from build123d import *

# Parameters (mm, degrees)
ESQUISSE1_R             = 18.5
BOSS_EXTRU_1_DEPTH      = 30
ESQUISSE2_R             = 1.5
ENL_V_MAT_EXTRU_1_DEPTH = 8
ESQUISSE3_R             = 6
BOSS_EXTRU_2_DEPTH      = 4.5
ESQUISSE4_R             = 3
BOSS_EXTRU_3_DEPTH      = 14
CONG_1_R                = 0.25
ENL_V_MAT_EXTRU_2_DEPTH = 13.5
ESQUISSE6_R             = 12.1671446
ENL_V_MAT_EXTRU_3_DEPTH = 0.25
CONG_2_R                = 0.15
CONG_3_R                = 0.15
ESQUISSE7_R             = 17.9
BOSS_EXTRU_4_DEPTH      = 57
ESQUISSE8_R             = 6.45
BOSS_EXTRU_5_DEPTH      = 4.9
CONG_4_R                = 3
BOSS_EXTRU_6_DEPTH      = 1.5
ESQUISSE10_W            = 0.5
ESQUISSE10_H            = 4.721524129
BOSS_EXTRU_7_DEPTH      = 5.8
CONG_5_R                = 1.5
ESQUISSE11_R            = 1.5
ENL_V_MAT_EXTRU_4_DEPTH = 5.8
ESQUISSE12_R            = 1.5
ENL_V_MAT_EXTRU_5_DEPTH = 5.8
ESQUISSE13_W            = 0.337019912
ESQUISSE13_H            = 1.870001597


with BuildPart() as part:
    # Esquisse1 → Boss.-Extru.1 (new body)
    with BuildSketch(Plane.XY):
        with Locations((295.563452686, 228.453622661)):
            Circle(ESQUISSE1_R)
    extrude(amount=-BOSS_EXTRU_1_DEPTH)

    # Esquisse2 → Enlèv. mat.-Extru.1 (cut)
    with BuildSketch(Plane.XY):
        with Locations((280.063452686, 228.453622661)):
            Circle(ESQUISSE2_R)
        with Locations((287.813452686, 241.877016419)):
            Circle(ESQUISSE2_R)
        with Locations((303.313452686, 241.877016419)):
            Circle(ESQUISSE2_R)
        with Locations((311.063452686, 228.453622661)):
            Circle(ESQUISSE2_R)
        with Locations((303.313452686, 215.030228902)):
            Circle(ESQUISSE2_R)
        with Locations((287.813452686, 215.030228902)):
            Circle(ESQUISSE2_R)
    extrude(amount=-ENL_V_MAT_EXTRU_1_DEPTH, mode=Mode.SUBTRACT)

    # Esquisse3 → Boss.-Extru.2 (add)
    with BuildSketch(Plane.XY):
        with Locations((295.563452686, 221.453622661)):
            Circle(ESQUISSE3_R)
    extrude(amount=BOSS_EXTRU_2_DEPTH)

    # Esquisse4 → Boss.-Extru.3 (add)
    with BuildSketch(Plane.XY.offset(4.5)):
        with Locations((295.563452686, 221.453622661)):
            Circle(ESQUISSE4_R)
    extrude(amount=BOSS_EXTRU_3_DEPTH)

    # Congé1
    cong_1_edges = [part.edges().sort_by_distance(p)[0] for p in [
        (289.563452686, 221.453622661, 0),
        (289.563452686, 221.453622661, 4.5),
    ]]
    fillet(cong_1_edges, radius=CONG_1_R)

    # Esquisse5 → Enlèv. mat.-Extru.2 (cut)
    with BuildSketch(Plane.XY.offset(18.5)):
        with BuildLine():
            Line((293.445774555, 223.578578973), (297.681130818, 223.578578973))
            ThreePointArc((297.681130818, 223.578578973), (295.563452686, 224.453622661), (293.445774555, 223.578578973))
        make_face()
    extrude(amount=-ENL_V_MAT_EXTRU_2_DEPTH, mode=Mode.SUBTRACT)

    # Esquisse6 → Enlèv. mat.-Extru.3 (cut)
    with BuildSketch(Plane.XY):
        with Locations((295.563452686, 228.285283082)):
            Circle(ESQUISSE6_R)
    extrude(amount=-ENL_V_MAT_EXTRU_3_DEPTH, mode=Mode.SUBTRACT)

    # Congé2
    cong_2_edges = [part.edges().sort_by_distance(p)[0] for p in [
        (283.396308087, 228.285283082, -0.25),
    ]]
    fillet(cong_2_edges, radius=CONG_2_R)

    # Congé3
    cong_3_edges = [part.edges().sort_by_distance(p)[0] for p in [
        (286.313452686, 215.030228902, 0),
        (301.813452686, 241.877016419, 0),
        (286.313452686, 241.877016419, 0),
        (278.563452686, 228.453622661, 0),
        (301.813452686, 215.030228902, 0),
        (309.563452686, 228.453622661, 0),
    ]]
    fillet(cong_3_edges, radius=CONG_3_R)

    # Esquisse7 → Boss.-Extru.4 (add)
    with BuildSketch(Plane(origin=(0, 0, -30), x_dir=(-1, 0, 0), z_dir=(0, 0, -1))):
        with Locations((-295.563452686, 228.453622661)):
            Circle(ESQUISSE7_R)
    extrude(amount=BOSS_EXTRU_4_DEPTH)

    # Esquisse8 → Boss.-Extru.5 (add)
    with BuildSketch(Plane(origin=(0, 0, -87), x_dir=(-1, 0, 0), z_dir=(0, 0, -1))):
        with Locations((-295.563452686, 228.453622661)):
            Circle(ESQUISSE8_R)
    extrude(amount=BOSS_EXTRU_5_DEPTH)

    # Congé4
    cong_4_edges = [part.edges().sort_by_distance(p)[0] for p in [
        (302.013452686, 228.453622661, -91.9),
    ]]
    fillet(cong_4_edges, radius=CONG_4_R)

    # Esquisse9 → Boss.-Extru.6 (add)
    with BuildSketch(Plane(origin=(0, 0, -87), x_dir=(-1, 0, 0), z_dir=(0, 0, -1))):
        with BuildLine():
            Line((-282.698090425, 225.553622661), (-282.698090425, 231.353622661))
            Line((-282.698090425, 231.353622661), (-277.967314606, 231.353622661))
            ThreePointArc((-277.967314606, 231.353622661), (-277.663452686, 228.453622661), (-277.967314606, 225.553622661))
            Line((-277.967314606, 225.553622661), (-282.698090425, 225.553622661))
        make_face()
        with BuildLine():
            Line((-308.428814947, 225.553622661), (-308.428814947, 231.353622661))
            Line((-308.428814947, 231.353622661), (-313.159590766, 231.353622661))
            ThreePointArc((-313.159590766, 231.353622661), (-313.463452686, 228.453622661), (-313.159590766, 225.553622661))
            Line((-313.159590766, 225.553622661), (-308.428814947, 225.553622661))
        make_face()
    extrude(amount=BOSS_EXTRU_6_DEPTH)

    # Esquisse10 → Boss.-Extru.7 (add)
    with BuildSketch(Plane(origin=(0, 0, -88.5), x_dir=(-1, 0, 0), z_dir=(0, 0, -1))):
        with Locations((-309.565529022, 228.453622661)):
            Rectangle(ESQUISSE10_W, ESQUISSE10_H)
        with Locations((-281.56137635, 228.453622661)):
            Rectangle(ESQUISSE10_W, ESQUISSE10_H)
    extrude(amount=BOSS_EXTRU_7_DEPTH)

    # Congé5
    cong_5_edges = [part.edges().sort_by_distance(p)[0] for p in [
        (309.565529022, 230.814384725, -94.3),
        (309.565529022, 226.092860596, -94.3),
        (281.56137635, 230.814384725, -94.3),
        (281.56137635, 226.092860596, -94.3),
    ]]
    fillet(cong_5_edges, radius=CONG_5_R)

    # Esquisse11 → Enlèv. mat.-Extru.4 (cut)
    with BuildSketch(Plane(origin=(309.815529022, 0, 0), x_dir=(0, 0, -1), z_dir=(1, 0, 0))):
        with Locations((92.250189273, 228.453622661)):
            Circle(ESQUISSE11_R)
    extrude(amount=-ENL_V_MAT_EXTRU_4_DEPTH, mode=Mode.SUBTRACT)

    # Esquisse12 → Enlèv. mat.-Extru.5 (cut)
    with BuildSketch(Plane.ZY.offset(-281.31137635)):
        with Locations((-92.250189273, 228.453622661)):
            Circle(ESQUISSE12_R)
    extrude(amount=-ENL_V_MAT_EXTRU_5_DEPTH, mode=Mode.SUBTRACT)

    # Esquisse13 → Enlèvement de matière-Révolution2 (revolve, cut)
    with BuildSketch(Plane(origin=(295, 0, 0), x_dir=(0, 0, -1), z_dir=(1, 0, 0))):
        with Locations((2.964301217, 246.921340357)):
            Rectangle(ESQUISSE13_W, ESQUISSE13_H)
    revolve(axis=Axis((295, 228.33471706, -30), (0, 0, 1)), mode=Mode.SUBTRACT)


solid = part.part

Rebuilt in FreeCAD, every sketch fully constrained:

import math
import FreeCAD as App
import Part
import Sketcher


def edges_at(feature, points):
    """Names of the edges that pass closest to the given points."""
    edges = feature.Shape.Edges
    near = lambda p: min(range(len(edges)), key=lambda i: edges[i].distToShape(Part.Vertex(*p))[0])
    return sorted({f"Edge{near(p) + 1}" for p in points})


def add_polygon(sketch, points):
    """Adds a closed chain of lines whose ends are joined by coincident constraints."""
    first, n = sketch.GeometryCount, len(points)
    for a, b in zip(points, points[1:] + points[:1]):
        sketch.addGeometry(Part.LineSegment(App.Vector(*a, 0), App.Vector(*b, 0)), False)
    for i in range(n):
        sketch.addConstraint(Sketcher.Constraint("Coincident", first + i, 2, first + (i + 1) % n, 1))

doc = App.newDocument("Part")
params = doc.addObject("Spreadsheet::Sheet", "Params")
for row, (alias, value) in enumerate([
    ("sketch1_diameter", "37 mm"),
    ("pad1_length", "30 mm"),
    ("sketch2_diameter", "3 mm"),
    ("pocket1_length", "8 mm"),
    ("sketch3_diameter", "12 mm"),
    ("pad2_length", "4.5 mm"),
    ("sketch4_diameter", "6 mm"),
    ("pad3_length", "14 mm"),
    ("fillet_radius", "0.25 mm"),
    ("sketch5_radius", "3 mm"),
    ("pocket2_length", "13.5 mm"),
    ("pocket3_length", "0.25 mm"),
    ("fillet2_radius", "0.15 mm"),
    ("fillet3_radius", "0.15 mm"),
    ("sketch7_diameter", "35.8 mm"),
    ("pad4_length", "57 mm"),
    ("sketch8_diameter", "12.9 mm"),
    ("pad5_length", "4.9 mm"),
    ("fillet4_radius", "3 mm"),
    ("sketch9_height", "5.8 mm"),
    ("pad6_length", "1.5 mm"),
    ("sketch10_width", "0.5 mm"),
    ("pad7_length", "5.8 mm"),
    ("fillet5_radius", "1.5 mm"),
    ("sketch11_diameter", "3 mm"),
    ("pocket4_length", "5.8 mm"),
    ("sketch12_diameter", "3 mm"),
    ("pocket5_length", "5.8 mm"),
    ("sketch13_width", "1.870002 mm"),
    ("groove_angle", "360 deg"),
], start=1):
    params.set(f"A{row}", alias)
    params.set(f"B{row}", "=" + value)
    params.setAlias(f"B{row}", alias)

body = doc.addObject("PartDesign::Body", "Body")

# Sketch on XY plane
sketch1 = body.newObject("Sketcher::SketchObject", "Sketch")
sketch1.AttachmentSupport = (doc.getObject("XY_Plane"), [""])
sketch1.MapMode = "FlatFace"
sketch1.addGeometry(Part.Circle(App.Vector(296, 228, 0), App.Vector(0, 0, 1), 18), False)
sketch1.addConstraint(Sketcher.Constraint("Diameter", 0, 37.0))
sketch1.addConstraint(Sketcher.Constraint("DistanceX", -1, 1, 0, 3, 295.563453))
sketch1.addConstraint(Sketcher.Constraint("DistanceY", -1, 1, 0, 3, 228.453623))
sketch1.setExpression("Constraints[0]", "Params.sketch1_diameter")
pad1 = body.newObject("PartDesign::Pad", "Pad")
pad1.Profile = sketch1
pad1.setExpression("Length", "Params.pad1_length")
pad1.Reversed = True

# Sketch on XY plane
sketch2 = body.newObject("Sketcher::SketchObject", "Sketch001")
sketch2.AttachmentSupport = (doc.getObject("XY_Plane"), [""])
sketch2.MapMode = "FlatFace"
sketch2.addGeometry(Part.Circle(App.Vector(280.1, 228.5, 0), App.Vector(0, 0, 1), 1.5), False)
sketch2.addGeometry(Part.Circle(App.Vector(287.8, 241.9, 0), App.Vector(0, 0, 1), 1.5), False)
sketch2.addGeometry(Part.Circle(App.Vector(303.3, 241.9, 0), App.Vector(0, 0, 1), 1.5), False)
sketch2.addGeometry(Part.Circle(App.Vector(311.1, 228.5, 0), App.Vector(0, 0, 1), 1.5), False)
sketch2.addGeometry(Part.Circle(App.Vector(303.3, 215, 0), App.Vector(0, 0, 1), 1.5), False)
sketch2.addGeometry(Part.Circle(App.Vector(287.8, 215, 0), App.Vector(0, 0, 1), 1.5), False)
sketch2.addConstraint(Sketcher.Constraint("Equal", 0, 1))
sketch2.addConstraint(Sketcher.Constraint("Equal", 1, 2))
sketch2.addConstraint(Sketcher.Constraint("Equal", 2, 3))
sketch2.addConstraint(Sketcher.Constraint("Equal", 3, 4))
sketch2.addConstraint(Sketcher.Constraint("Equal", 4, 5))
sketch2.addConstraint(Sketcher.Constraint("Horizontal", 1, 3, 2, 3))
sketch2.addConstraint(Sketcher.Constraint("Horizontal", 0, 3, 3, 3))
sketch2.addConstraint(Sketcher.Constraint("Horizontal", 4, 3, 5, 3))
sketch2.addConstraint(Sketcher.Constraint("Vertical", 2, 3, 4, 3))
sketch2.addConstraint(Sketcher.Constraint("Vertical", 1, 3, 5, 3))
sketch2.addConstraint(Sketcher.Constraint("Diameter", 0, 3.0))
sketch2.addConstraint(Sketcher.Constraint("DistanceX", 0, 3, 3, 3, 31.0))
sketch2.addConstraint(Sketcher.Constraint("DistanceX", 1, 3, 2, 3, 15.5))
sketch2.addConstraint(Sketcher.Constraint("DistanceX", 0, 3, 1, 3, 7.75))
sketch2.addConstraint(Sketcher.Constraint("DistanceY", -1, 1, 4, 3, 215.030229))
sketch2.addConstraint(Sketcher.Constraint("DistanceX", -1, 1, 0, 3, 280.063453))
sketch2.addConstraint(Sketcher.Constraint("DistanceY", -1, 1, 0, 3, 228.453623))
sketch2.addConstraint(Sketcher.Constraint("DistanceY", -1, 1, 1, 3, 241.877016))
sketch2.setExpression("Constraints[10]", "Params.sketch2_diameter")
pocket1 = body.newObject("PartDesign::Pocket", "Pocket")
pocket1.Profile = sketch2
pocket1.setExpression("Length", "Params.pocket1_length")

# Sketch on XY plane
sketch3 = body.newObject("Sketcher::SketchObject", "Sketch002")
sketch3.AttachmentSupport = (doc.getObject("XY_Plane"), [""])
sketch3.MapMode = "FlatFace"
sketch3.addGeometry(Part.Circle(App.Vector(296, 221, 0), App.Vector(0, 0, 1), 6), False)
sketch3.addConstraint(Sketcher.Constraint("Diameter", 0, 12.0))
sketch3.addConstraint(Sketcher.Constraint("DistanceX", -1, 1, 0, 3, 295.563453))
sketch3.addConstraint(Sketcher.Constraint("DistanceY", -1, 1, 0, 3, 221.453623))
sketch3.setExpression("Constraints[0]", "Params.sketch3_diameter")
pad2 = body.newObject("PartDesign::Pad", "Pad001")
pad2.Profile = sketch3
pad2.setExpression("Length", "Params.pad2_length")

# Sketch on XY plane
sketch4 = body.newObject("Sketcher::SketchObject", "Sketch003")
sketch4.AttachmentSupport = (doc.getObject("XY_Plane"), [""])
sketch4.MapMode = "FlatFace"
sketch4.AttachmentOffset = App.Placement(App.Vector(0, 0, 4.5), App.Rotation())
sketch4.addGeometry(Part.Circle(App.Vector(295.6, 221.5, 0), App.Vector(0, 0, 1), 3), False)
sketch4.addConstraint(Sketcher.Constraint("Diameter", 0, 6.0))
sketch4.addConstraint(Sketcher.Constraint("DistanceX", -1, 1, 0, 3, 295.563453))
sketch4.addConstraint(Sketcher.Constraint("DistanceY", -1, 1, 0, 3, 221.453623))
sketch4.setExpression("Constraints[0]", "Params.sketch4_diameter")
pad3 = body.newObject("PartDesign::Pad", "Pad002")
pad3.Profile = sketch4
pad3.setExpression("Length", "Params.pad3_length")
doc.recompute()

fillet = body.newObject("PartDesign::Fillet", "Fillet")
fillet.Base = (pad3, edges_at(pad3, [(289.563, 221.454, 0), (289.563, 221.454, 4.5)]))
fillet.setExpression("Radius", "Params.fillet_radius")

# Sketch on XY plane
sketch5 = body.newObject("Sketcher::SketchObject", "Sketch004")
sketch5.AttachmentSupport = (doc.getObject("XY_Plane"), [""])
sketch5.MapMode = "FlatFace"
sketch5.AttachmentOffset = App.Placement(App.Vector(0, 0, 18.5), App.Rotation())
sketch5.addGeometry(Part.LineSegment(App.Vector(293.4, 223.6, 0), App.Vector(297.7, 223.6, 0)), False)
sketch5.addGeometry(Part.ArcOfCircle(Part.Circle(App.Vector(295.6, 221.5, 0), App.Vector(0, 0, 1), 3), math.radians(45), math.radians(135)), False)
sketch5.addConstraint(Sketcher.Constraint("Coincident", 0, 1, 1, 2))
sketch5.addConstraint(Sketcher.Constraint("Coincident", 1, 1, 0, 2))
sketch5.addConstraint(Sketcher.Constraint("Horizontal", 0))
sketch5.addConstraint(Sketcher.Constraint("Radius", 1, 3.0))
sketch5.addConstraint(Sketcher.Constraint("DistanceX", 0, 1, 0, 2, 4.235356))
sketch5.addConstraint(Sketcher.Constraint("DistanceY", -1, 1, 0, 1, 223.578579))
sketch5.addConstraint(Sketcher.Constraint("DistanceX", -1, 1, 1, 1, 297.681131))
sketch5.setExpression("Constraints[3]", "Params.sketch5_radius")
pocket2 = body.newObject("PartDesign::Pocket", "Pocket001")
pocket2.Profile = sketch5
pocket2.setExpression("Length", "Params.pocket2_length")

# Sketch on XY plane
sketch6 = body.newObject("Sketcher::SketchObject", "Sketch005")
sketch6.AttachmentSupport = (doc.getObject("XY_Plane"), [""])
sketch6.MapMode = "FlatFace"
sketch6.addGeometry(Part.Circle(App.Vector(296, 228, 0), App.Vector(0, 0, 1), 12), False)
sketch6.addConstraint(Sketcher.Constraint("Diameter", 0, 24.334289))
sketch6.addConstraint(Sketcher.Constraint("DistanceX", -1, 1, 0, 3, 295.563453))
sketch6.addConstraint(Sketcher.Constraint("DistanceY", -1, 1, 0, 3, 228.285283))
pocket3 = body.newObject("PartDesign::Pocket", "Pocket002")
pocket3.Profile = sketch6
pocket3.setExpression("Length", "Params.pocket3_length")
doc.recompute()

fillet2 = body.newObject("PartDesign::Fillet", "Fillet001")
fillet2.Base = (pocket3, edges_at(pocket3, [(283.396, 228.285, -0.25)]))
fillet2.setExpression("Radius", "Params.fillet2_radius")
doc.recompute()

fillet3 = body.newObject("PartDesign::Fillet", "Fillet002")
fillet3.Base = (fillet2, edges_at(fillet2, [
    (286.313, 215.03, 0),
    (301.813, 241.877, 0),
    (286.313, 241.877, 0),
    (278.563, 228.454, 0),
    (301.813, 215.03, 0),
    (309.563, 228.454, 0),
]))
fillet3.setExpression("Radius", "Params.fillet3_radius")

# Sketch on XY plane
sketch7 = body.newObject("Sketcher::SketchObject", "Sketch006")
sketch7.AttachmentSupport = (doc.getObject("XY_Plane"), [""])
sketch7.MapMode = "FlatFace"
sketch7.AttachmentOffset = App.Placement(App.Vector(0, 0, -30), App.Rotation())
sketch7.addGeometry(Part.Circle(App.Vector(296, 228, 0), App.Vector(0, 0, 1), 18), False)
sketch7.addConstraint(Sketcher.Constraint("Diameter", 0, 35.8))
sketch7.addConstraint(Sketcher.Constraint("DistanceX", -1, 1, 0, 3, 295.563453))
sketch7.addConstraint(Sketcher.Constraint("DistanceY", -1, 1, 0, 3, 228.453623))
sketch7.setExpression("Constraints[0]", "Params.sketch7_diameter")
pad4 = body.newObject("PartDesign::Pad", "Pad003")
pad4.Profile = sketch7
pad4.setExpression("Length", "Params.pad4_length")
pad4.Reversed = True

# Sketch on XY plane
sketch8 = body.newObject("Sketcher::SketchObject", "Sketch007")
sketch8.AttachmentSupport = (doc.getObject("XY_Plane"), [""])
sketch8.MapMode = "FlatFace"
sketch8.AttachmentOffset = App.Placement(App.Vector(0, 0, -87), App.Rotation())
sketch8.addGeometry(Part.Circle(App.Vector(296, 228, 0), App.Vector(0, 0, 1), 6), False)
sketch8.addConstraint(Sketcher.Constraint("Diameter", 0, 12.9))
sketch8.addConstraint(Sketcher.Constraint("DistanceX", -1, 1, 0, 3, 295.563453))
sketch8.addConstraint(Sketcher.Constraint("DistanceY", -1, 1, 0, 3, 228.453623))
sketch8.setExpression("Constraints[0]", "Params.sketch8_diameter")
pad5 = body.newObject("PartDesign::Pad", "Pad004")
pad5.Profile = sketch8
pad5.setExpression("Length", "Params.pad5_length")
pad5.Reversed = True
doc.recompute()

fillet4 = body.newObject("PartDesign::Fillet", "Fillet003")
fillet4.Base = (pad5, edges_at(pad5, [(302.013, 228.454, -91.9)]))
fillet4.setExpression("Radius", "Params.fillet4_radius")

# Sketch on XY plane
sketch9 = body.newObject("Sketcher::SketchObject", "Sketch008")
sketch9.AttachmentSupport = (doc.getObject("XY_Plane"), [""])
sketch9.MapMode = "FlatFace"
sketch9.AttachmentOffset = App.Placement(App.Vector(0, 0, -87), App.Rotation())
sketch9.addGeometry(Part.LineSegment(App.Vector(282.7, 231.4, 0), App.Vector(282.7, 225.6, 0)), False)
sketch9.addGeometry(Part.LineSegment(App.Vector(282.7, 225.6, 0), App.Vector(278, 225.6, 0)), False)
sketch9.addGeometry(Part.ArcOfCircle(Part.Circle(App.Vector(291.7, 228.5, 0), App.Vector(0, 0, 1), 14), math.radians(168), math.radians(192)), False)
sketch9.addGeometry(Part.LineSegment(App.Vector(278, 231.4, 0), App.Vector(282.7, 231.4, 0)), False)
sketch9.addGeometry(Part.LineSegment(App.Vector(308.4, 225.6, 0), App.Vector(308.4, 231.4, 0)), False)
sketch9.addGeometry(Part.LineSegment(App.Vector(308.4, 231.4, 0), App.Vector(313.2, 231.4, 0)), False)
sketch9.addGeometry(Part.ArcOfCircle(Part.Circle(App.Vector(299.5, 228.5, 0), App.Vector(0, 0, 1), 14), math.radians(-12), math.radians(12)), False)
sketch9.addGeometry(Part.LineSegment(App.Vector(313.2, 225.6, 0), App.Vector(308.4, 225.6, 0)), False)
sketch9.addConstraint(Sketcher.Constraint("Coincident", 0, 2, 1, 1))
sketch9.addConstraint(Sketcher.Constraint("Coincident", 1, 2, 2, 2))
sketch9.addConstraint(Sketcher.Constraint("Coincident", 2, 1, 3, 1))
sketch9.addConstraint(Sketcher.Constraint("Coincident", 3, 2, 0, 1))
sketch9.addConstraint(Sketcher.Constraint("Coincident", 4, 2, 5, 1))
sketch9.addConstraint(Sketcher.Constraint("Coincident", 5, 2, 6, 2))
sketch9.addConstraint(Sketcher.Constraint("Coincident", 6, 1, 7, 1))
sketch9.addConstraint(Sketcher.Constraint("Coincident", 7, 2, 4, 1))
sketch9.addConstraint(Sketcher.Constraint("Vertical", 0))
sketch9.addConstraint(Sketcher.Constraint("Horizontal", 1))
sketch9.addConstraint(Sketcher.Constraint("Horizontal", 3))
sketch9.addConstraint(Sketcher.Constraint("Vertical", 4))
sketch9.addConstraint(Sketcher.Constraint("Horizontal", 5))
sketch9.addConstraint(Sketcher.Constraint("Horizontal", 7))
sketch9.addConstraint(Sketcher.Constraint("Equal", 2, 6))
sketch9.addConstraint(Sketcher.Constraint("Horizontal", 2, 3, 6, 3))
sketch9.addConstraint(Sketcher.Constraint("Horizontal", 3, 2, 4, 2))
sketch9.addConstraint(Sketcher.Constraint("Horizontal", 1, 2, 6, 1))
sketch9.addConstraint(Sketcher.Constraint("Vertical", 1, 2, 2, 1))
sketch9.addConstraint(Sketcher.Constraint("Equal", 3, 5))
sketch9.addConstraint(Sketcher.Constraint("DistanceY", 0, 2, 0, 1, 5.8))
sketch9.addConstraint(Sketcher.Constraint("DistanceX", -1, 1, 6, 3, 299.472999))
sketch9.addConstraint(Sketcher.Constraint("Radius", 2, 13.990453))
sketch9.addConstraint(Sketcher.Constraint("DistanceX", 2, 1, 4, 2, 30.4615))
sketch9.addConstraint(Sketcher.Constraint("DistanceX", 1, 2, 1, 1, 4.730776))
sketch9.addConstraint(Sketcher.Constraint("DistanceY", -1, 1, 2, 3, 228.453623))
sketch9.setExpression("Constraints[20]", "Params.sketch9_height")
pad6 = body.newObject("PartDesign::Pad", "Pad005")
pad6.Profile = sketch9
pad6.setExpression("Length", "Params.pad6_length")
pad6.Reversed = True

# Sketch on XY plane
sketch10 = body.newObject("Sketcher::SketchObject", "Sketch009")
sketch10.AttachmentSupport = (doc.getObject("XY_Plane"), [""])
sketch10.MapMode = "FlatFace"
sketch10.AttachmentOffset = App.Placement(App.Vector(0, 0, -88.5), App.Rotation())
add_polygon(sketch10, [(309.8, 230.8), (309.8, 226.1), (309.3, 226.1), (309.3, 230.8)])  # lines 0-3
add_polygon(sketch10, [(281.8, 230.8), (281.8, 226.1), (281.3, 226.1), (281.3, 230.8)])  # lines 4-7
sketch10.addConstraint(Sketcher.Constraint("Vertical", 0))
sketch10.addConstraint(Sketcher.Constraint("Horizontal", 1))
sketch10.addConstraint(Sketcher.Constraint("Vertical", 2))
sketch10.addConstraint(Sketcher.Constraint("Horizontal", 3))
sketch10.addConstraint(Sketcher.Constraint("Vertical", 4))
sketch10.addConstraint(Sketcher.Constraint("Horizontal", 5))
sketch10.addConstraint(Sketcher.Constraint("Vertical", 6))
sketch10.addConstraint(Sketcher.Constraint("Horizontal", 7))
sketch10.addConstraint(Sketcher.Constraint("Horizontal", 1, 2, 4, 2))
sketch10.addConstraint(Sketcher.Constraint("Horizontal", 3, 2, 6, 2))
sketch10.addConstraint(Sketcher.Constraint("Equal", 3, 5))
sketch10.addConstraint(Sketcher.Constraint("DistanceX", 1, 2, 1, 1, 0.5))
sketch10.addConstraint(Sketcher.Constraint("DistanceY", 0, 2, 0, 1, 4.721524))
sketch10.addConstraint(Sketcher.Constraint("DistanceX", -1, 1, 0, 2, 309.815529))
sketch10.addConstraint(Sketcher.Constraint("DistanceY", -1, 1, 0, 2, 226.092861))
sketch10.addConstraint(Sketcher.Constraint("DistanceX", -1, 1, 4, 2, 281.811376))
sketch10.setExpression("Constraints[19]", "Params.sketch10_width")
pad7 = body.newObject("PartDesign::Pad", "Pad006")
pad7.Profile = sketch10
pad7.setExpression("Length", "Params.pad7_length")
pad7.Reversed = True
doc.recompute()

fillet5 = body.newObject("PartDesign::Fillet", "Fillet004")
fillet5.Base = (pad7, edges_at(pad7, [
    (309.566, 230.814, -94.3),
    (309.566, 226.093, -94.3),
    (281.561, 230.814, -94.3),
    (281.561, 226.093, -94.3),
]))
fillet5.setExpression("Radius", "Params.fillet5_radius")

# Sketch on YZ plane
sketch11 = body.newObject("Sketcher::SketchObject", "Sketch010")
sketch11.AttachmentSupport = (doc.getObject("YZ_Plane"), [""])
sketch11.MapMode = "FlatFace"
sketch11.AttachmentOffset = App.Placement(App.Vector(0, 0, 309.815529), App.Rotation())
sketch11.addGeometry(Part.Circle(App.Vector(228.5, -92.3, 0), App.Vector(0, 0, 1), 1.5), False)
sketch11.addConstraint(Sketcher.Constraint("Diameter", 0, 3.0))
sketch11.addConstraint(Sketcher.Constraint("DistanceY", 0, 3, -1, 1, 92.250189))
sketch11.addConstraint(Sketcher.Constraint("DistanceX", -1, 1, 0, 3, 228.453623))
sketch11.setExpression("Constraints[0]", "Params.sketch11_diameter")
pocket4 = body.newObject("PartDesign::Pocket", "Pocket003")
pocket4.Profile = sketch11
pocket4.setExpression("Length", "Params.pocket4_length")

# Sketch on YZ plane
sketch12 = body.newObject("Sketcher::SketchObject", "Sketch011")
sketch12.AttachmentSupport = (doc.getObject("YZ_Plane"), [""])
sketch12.MapMode = "FlatFace"
sketch12.AttachmentOffset = App.Placement(App.Vector(0, 0, 281.311376), App.Rotation())
sketch12.addGeometry(Part.Circle(App.Vector(228.5, -92.3, 0), App.Vector(0, 0, 1), 1.5), False)
sketch12.addConstraint(Sketcher.Constraint("Diameter", 0, 3.0))
sketch12.addConstraint(Sketcher.Constraint("DistanceY", 0, 3, -1, 1, 92.250189))
sketch12.addConstraint(Sketcher.Constraint("DistanceX", -1, 1, 0, 3, 228.453623))
sketch12.setExpression("Constraints[0]", "Params.sketch12_diameter")
pocket5 = body.newObject("PartDesign::Pocket", "Pocket004")
pocket5.Profile = sketch12
pocket5.setExpression("Length", "Params.pocket5_length")
pocket5.Reversed = True

# Sketch on YZ plane
sketch13 = body.newObject("Sketcher::SketchObject", "Sketch012")
sketch13.AttachmentSupport = (doc.getObject("YZ_Plane"), [""])
sketch13.MapMode = "FlatFace"
sketch13.AttachmentOffset = App.Placement(App.Vector(0, 0, 295), App.Rotation())
add_polygon(sketch13, [(247.86, -2.8), (245.99, -2.8), (245.99, -3.13), (247.86, -3.13)])  # lines 0-3
sketch13.addGeometry(Part.LineSegment(App.Vector(228.33, -3.13, 0), App.Vector(228.33, -2.8, 0)), True)  # axis
sketch13.addConstraint(Sketcher.Constraint("Horizontal", 0))
sketch13.addConstraint(Sketcher.Constraint("Vertical", 1))
sketch13.addConstraint(Sketcher.Constraint("Horizontal", 2))
sketch13.addConstraint(Sketcher.Constraint("Vertical", 3))
sketch13.addConstraint(Sketcher.Constraint("Vertical", 4))
sketch13.addConstraint(Sketcher.Constraint("Horizontal", 2, 2, 4, 1))
sketch13.addConstraint(Sketcher.Constraint("Horizontal", 3, 2, 4, 2))
sketch13.addConstraint(Sketcher.Constraint("DistanceX", 0, 2, 0, 1, 1.870002))
sketch13.addConstraint(Sketcher.Constraint("DistanceY", 1, 2, 1, 1, 0.33702))
sketch13.addConstraint(Sketcher.Constraint("DistanceX", -1, 1, 0, 2, 245.98634))
sketch13.addConstraint(Sketcher.Constraint("DistanceY", 0, 2, -1, 1, 2.795791))
sketch13.addConstraint(Sketcher.Constraint("DistanceX", -1, 1, 4, 1, 228.334717))
sketch13.setExpression("Constraints[11]", "Params.sketch13_width")
groove = body.newObject("PartDesign::Groove", "Groove")
groove.Profile = sketch13
groove.ReferenceAxis = (sketch13, ["Axis0"])
groove.setExpression("Angle", "Params.groove_angle")

doc.recompute()
